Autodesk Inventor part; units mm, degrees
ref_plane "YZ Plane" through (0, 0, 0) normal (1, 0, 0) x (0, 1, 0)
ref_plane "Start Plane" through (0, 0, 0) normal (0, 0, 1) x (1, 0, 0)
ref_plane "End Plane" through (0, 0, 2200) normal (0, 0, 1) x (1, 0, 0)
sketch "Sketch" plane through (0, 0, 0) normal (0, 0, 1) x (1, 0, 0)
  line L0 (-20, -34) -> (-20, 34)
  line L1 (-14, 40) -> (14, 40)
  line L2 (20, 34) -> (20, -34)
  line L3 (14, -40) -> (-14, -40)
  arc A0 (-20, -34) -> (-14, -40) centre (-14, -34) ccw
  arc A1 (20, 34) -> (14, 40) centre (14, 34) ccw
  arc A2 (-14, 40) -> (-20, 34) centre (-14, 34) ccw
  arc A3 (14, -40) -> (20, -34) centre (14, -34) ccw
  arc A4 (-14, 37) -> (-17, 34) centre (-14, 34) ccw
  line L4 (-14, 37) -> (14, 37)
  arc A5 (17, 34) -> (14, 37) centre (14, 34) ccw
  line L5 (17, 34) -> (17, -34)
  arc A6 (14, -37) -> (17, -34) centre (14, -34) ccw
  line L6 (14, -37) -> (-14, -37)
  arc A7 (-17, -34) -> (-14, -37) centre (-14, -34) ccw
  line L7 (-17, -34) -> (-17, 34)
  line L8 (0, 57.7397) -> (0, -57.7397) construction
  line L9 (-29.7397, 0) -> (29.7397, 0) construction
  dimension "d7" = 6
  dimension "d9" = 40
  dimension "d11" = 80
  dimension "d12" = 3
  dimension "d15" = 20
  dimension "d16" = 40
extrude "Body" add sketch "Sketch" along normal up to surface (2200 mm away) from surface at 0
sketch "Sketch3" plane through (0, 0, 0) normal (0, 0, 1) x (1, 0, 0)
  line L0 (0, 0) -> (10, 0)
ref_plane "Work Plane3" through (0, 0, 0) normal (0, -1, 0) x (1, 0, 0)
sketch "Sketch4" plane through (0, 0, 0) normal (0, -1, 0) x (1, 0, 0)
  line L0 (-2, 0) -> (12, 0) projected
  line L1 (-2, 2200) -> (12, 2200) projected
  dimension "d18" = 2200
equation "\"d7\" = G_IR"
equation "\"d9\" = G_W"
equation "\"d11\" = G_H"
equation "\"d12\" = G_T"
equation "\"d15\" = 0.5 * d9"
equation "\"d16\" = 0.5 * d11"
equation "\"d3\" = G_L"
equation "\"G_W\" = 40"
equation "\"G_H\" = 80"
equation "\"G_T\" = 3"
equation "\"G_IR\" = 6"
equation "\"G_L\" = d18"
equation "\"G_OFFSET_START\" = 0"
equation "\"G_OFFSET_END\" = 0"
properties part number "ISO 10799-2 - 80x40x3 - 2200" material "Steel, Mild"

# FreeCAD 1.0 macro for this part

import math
import FreeCAD as App
import Part
import Sketcher

V = App.Vector
Q = App.Units.Quantity

doc = App.newDocument("Part")
body = doc.addObject("PartDesign::Body", "Body")

sketch1 = doc.addObject("Sketcher::SketchObject", "Sketch")
body.addObject(sketch1)
sketch1.AttachmentSupport = (doc.XY_Plane, [""])
sketch1.MapMode = "FlatFace"
sketch1.addGeometry(Part.LineSegment(V(-20, 34, 0), V(-20, -34, 0)), False)
sketch1.addGeometry(Part.ArcOfCircle(Part.Circle(V(-14, -34, 0), V(0, 0, 1), 6), math.radians(180), math.radians(270)), False)
sketch1.addGeometry(Part.LineSegment(V(-14, -40, 0), V(14, -40, 0)), False)
sketch1.addGeometry(Part.ArcOfCircle(Part.Circle(V(14, -34, 0), V(0, 0, 1), 6), math.radians(-90), math.radians(0)), False)
sketch1.addGeometry(Part.LineSegment(V(20, -34, 0), V(20, 34, 0)), False)
sketch1.addGeometry(Part.ArcOfCircle(Part.Circle(V(14, 34, 0), V(0, 0, 1), 6), math.radians(0), math.radians(90)), False)
sketch1.addGeometry(Part.LineSegment(V(14, 40, 0), V(-14, 40, 0)), False)
sketch1.addGeometry(Part.ArcOfCircle(Part.Circle(V(-14, 34, 0), V(0, 0, 1), 6), math.radians(90), math.radians(180)), False)
sketch1.addGeometry(Part.ArcOfCircle(Part.Circle(V(-14, 34, 0), V(0, 0, 1), 3), math.radians(90), math.radians(180)), False)
sketch1.addGeometry(Part.LineSegment(V(-14, 37, 0), V(14, 37, 0)), False)
sketch1.addGeometry(Part.ArcOfCircle(Part.Circle(V(14, 34, 0), V(0, 0, 1), 3), math.radians(0), math.radians(90)), False)
sketch1.addGeometry(Part.LineSegment(V(17, 34, 0), V(17, -34, 0)), False)
sketch1.addGeometry(Part.ArcOfCircle(Part.Circle(V(14, -34, 0), V(0, 0, 1), 3), math.radians(-90), math.radians(0)), False)
sketch1.addGeometry(Part.LineSegment(V(14, -37, 0), V(-14, -37, 0)), False)
sketch1.addGeometry(Part.ArcOfCircle(Part.Circle(V(-14, -34, 0), V(0, 0, 1), 3), math.radians(180), math.radians(270)), False)
sketch1.addGeometry(Part.LineSegment(V(-17, -34, 0), V(-17, 34, 0)), False)
sketch1.addConstraint(Sketcher.Constraint("Tangent", 0, 2, 1, 1))
sketch1.addConstraint(Sketcher.Constraint("Tangent", 1, 2, 2, 1))
sketch1.addConstraint(Sketcher.Constraint("Tangent", 2, 2, 3, 1))
sketch1.addConstraint(Sketcher.Constraint("Tangent", 3, 2, 4, 1))
sketch1.addConstraint(Sketcher.Constraint("Tangent", 4, 2, 5, 1))
sketch1.addConstraint(Sketcher.Constraint("Tangent", 5, 2, 6, 1))
sketch1.addConstraint(Sketcher.Constraint("Tangent", 6, 2, 7, 1))
sketch1.addConstraint(Sketcher.Constraint("Tangent", 7, 2, 0, 1))
sketch1.addConstraint(Sketcher.Constraint("Tangent", 8, 1, 9, 1))
sketch1.addConstraint(Sketcher.Constraint("Tangent", 9, 2, 10, 2))
sketch1.addConstraint(Sketcher.Constraint("Tangent", 10, 1, 11, 1))
sketch1.addConstraint(Sketcher.Constraint("Tangent", 11, 2, 12, 2))
sketch1.addConstraint(Sketcher.Constraint("Tangent", 12, 1, 13, 1))
sketch1.addConstraint(Sketcher.Constraint("Tangent", 13, 2, 14, 2))
sketch1.addConstraint(Sketcher.Constraint("Tangent", 14, 1, 15, 1))
sketch1.addConstraint(Sketcher.Constraint("Tangent", 15, 2, 8, 2))
sketch1.addConstraint(Sketcher.Constraint("Vertical", 0))
sketch1.addConstraint(Sketcher.Constraint("Horizontal", 2))
sketch1.addConstraint(Sketcher.Constraint("Vertical", 4))
sketch1.addConstraint(Sketcher.Constraint("Horizontal", 6))
sketch1.addConstraint(Sketcher.Constraint("Horizontal", 9))
sketch1.addConstraint(Sketcher.Constraint("Vertical", 11))
sketch1.addConstraint(Sketcher.Constraint("Horizontal", 13))
sketch1.addConstraint(Sketcher.Constraint("Vertical", 15))
sketch1.addConstraint(Sketcher.Constraint("Coincident", 8, 3, 7, 3))
sketch1.addConstraint(Sketcher.Constraint("Coincident", 10, 3, 5, 3))
sketch1.addConstraint(Sketcher.Constraint("Coincident", 12, 3, 3, 3))
sketch1.addConstraint(Sketcher.Constraint("Equal", 1, 3))
sketch1.addConstraint(Sketcher.Constraint("Equal", 3, 5))
sketch1.addConstraint(Sketcher.Constraint("Equal", 5, 7))
sketch1.addConstraint(Sketcher.Constraint("Equal", 12, 14))
sketch1.addConstraint(Sketcher.Constraint("Symmetric", 1, 3, 5, 3, -1, 1))
sketch1.addConstraint(Sketcher.Constraint("Radius", 1, Q("6 mm")))
sketch1.addConstraint(Sketcher.Constraint("Radius", 8, Q("3 mm")))
sketch1.addConstraint(Sketcher.Constraint("DistanceX", 0, 2, -1, 1, Q("20 mm")))
sketch1.addConstraint(Sketcher.Constraint("DistanceY", 1, 2, -1, 1, Q("40 mm")))
pad1 = doc.addObject("PartDesign::Pad", "Pad")
body.addObject(pad1)
pad1.Profile = sketch1
pad1.Length = 2200

doc.recompute()
